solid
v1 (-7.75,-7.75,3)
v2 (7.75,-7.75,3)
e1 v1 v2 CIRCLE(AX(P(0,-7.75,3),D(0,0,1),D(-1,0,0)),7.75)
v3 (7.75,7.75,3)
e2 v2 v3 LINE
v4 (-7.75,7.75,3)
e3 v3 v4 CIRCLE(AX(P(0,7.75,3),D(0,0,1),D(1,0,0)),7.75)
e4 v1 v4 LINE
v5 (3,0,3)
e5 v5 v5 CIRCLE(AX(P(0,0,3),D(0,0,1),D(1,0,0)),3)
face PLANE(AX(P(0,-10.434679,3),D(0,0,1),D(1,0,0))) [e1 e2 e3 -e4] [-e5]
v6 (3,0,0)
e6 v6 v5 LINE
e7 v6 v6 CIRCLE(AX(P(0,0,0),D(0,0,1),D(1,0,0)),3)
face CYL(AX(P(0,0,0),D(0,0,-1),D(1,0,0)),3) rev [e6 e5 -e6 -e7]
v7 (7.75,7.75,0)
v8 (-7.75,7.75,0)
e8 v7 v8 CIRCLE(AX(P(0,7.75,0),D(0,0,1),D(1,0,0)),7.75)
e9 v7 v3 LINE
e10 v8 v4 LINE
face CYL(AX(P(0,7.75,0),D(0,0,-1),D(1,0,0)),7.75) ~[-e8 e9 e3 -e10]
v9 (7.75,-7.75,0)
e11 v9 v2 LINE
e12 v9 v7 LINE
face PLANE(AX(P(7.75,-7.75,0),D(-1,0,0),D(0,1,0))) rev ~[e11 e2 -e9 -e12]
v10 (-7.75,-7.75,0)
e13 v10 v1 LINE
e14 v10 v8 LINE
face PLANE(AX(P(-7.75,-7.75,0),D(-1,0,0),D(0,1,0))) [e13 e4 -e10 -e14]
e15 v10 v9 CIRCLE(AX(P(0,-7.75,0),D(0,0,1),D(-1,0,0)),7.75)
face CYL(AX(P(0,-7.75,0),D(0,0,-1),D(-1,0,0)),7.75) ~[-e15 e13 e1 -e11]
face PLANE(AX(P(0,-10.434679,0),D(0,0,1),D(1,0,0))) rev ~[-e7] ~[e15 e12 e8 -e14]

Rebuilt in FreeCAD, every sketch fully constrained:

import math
import FreeCAD as App
import Part
import Sketcher

V = App.Vector
Q = App.Units.Quantity

doc = App.newDocument("Part")
body = doc.addObject("PartDesign::Body", "Body")

# Sketch on XY plane
sketch1 = doc.addObject("Sketcher::SketchObject", "Sketch")
body.addObject(sketch1)
sketch1.AttachmentSupport = (doc.XY_Plane, [""])
sketch1.MapMode = "FlatFace"
sketch1.addGeometry([
    Part.ArcOfCircle(Part.Circle(V(0, -7.8, 0), V(0, 0, 1), 7.8), math.radians(180), math.radians(360)),  # 0
    Part.LineSegment(V(7.8, -7.8, 0), V(7.8, 7.8, 0)),  # 1
    Part.ArcOfCircle(Part.Circle(V(0, 7.8, 0), V(0, 0, 1), 7.8), math.radians(0), math.radians(180)),  # 2
    Part.LineSegment(V(-7.8, 7.8, 0), V(-7.8, -7.8, 0)),  # 3
    Part.Circle(V(0, 0, 0), V(0, 0, 1), 3),  # 4
], False)
sketch1.addConstraint([
    Sketcher.Constraint("Tangent", 0, 2, 1, 1),
    Sketcher.Constraint("Tangent", 1, 2, 2, 1),
    Sketcher.Constraint("Tangent", 2, 2, 3, 1),
    Sketcher.Constraint("Tangent", 3, 2, 0, 1),
    Sketcher.Constraint("Vertical", 1),
    Sketcher.Constraint("Vertical", 3),
    Sketcher.Constraint("Coincident", 4, 3, -1, 1),
    Sketcher.Constraint("Symmetric", 0, 3, 2, 3, -1, 1),
    Sketcher.Constraint("Diameter", 4, Q("6 mm")),
    Sketcher.Constraint("Radius", 0, Q("7.75 mm")),
    Sketcher.Constraint("DistanceY", 1, 1, 1, 2, Q("15.5 mm")),
])
pad1 = doc.addObject("PartDesign::Pad", "Pad")
body.addObject(pad1)
pad1.Profile = sketch1
pad1.Length = 3

doc.recompute()
